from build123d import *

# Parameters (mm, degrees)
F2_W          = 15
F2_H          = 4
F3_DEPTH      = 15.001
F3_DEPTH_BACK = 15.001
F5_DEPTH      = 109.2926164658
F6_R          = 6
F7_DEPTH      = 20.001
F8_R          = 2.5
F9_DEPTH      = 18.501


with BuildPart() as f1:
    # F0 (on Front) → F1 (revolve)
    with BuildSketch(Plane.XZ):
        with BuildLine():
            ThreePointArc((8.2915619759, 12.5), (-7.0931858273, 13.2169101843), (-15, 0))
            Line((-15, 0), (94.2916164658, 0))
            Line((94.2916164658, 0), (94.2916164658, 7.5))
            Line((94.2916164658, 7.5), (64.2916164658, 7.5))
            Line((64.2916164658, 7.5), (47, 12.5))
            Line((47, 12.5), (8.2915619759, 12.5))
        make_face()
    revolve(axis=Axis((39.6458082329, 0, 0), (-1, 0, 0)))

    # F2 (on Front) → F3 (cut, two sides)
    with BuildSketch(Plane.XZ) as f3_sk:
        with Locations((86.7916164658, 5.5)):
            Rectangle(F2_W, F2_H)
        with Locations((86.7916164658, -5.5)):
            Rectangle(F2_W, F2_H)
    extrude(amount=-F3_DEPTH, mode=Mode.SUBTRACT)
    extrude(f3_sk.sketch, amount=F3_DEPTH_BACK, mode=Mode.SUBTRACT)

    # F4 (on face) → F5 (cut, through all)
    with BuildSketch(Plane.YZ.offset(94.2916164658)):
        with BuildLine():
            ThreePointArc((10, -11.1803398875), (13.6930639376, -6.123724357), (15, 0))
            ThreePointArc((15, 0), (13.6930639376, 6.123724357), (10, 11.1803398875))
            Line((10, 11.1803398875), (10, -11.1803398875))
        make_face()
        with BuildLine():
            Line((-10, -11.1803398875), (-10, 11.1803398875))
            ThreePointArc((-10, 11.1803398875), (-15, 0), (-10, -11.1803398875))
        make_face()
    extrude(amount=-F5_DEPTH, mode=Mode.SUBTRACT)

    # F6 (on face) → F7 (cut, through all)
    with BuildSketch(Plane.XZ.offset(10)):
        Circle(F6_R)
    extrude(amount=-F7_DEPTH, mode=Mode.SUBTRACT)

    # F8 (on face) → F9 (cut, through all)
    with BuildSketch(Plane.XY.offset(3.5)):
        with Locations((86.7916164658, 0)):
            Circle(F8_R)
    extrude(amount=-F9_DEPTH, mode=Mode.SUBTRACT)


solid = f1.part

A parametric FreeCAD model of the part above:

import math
import FreeCAD as App
import Part
import Sketcher
Q = App.Units.Quantity

doc = App.newDocument("Part")
body = doc.addObject("PartDesign::Body", "Body")

sketch1 = body.newObject("Sketcher::SketchObject", "Sketch")
sketch1.AttachmentSupport = (doc.getObject("XZ_Plane"), [""])
sketch1.MapMode = "FlatFace"
sketch1.addGeometry([
    Part.ArcOfCircle(Part.Circle(App.Vector(0, 0, 0), App.Vector(0, 0, 1), 15), math.radians(56), math.radians(180)),
    Part.LineSegment(App.Vector(-15, 0, 0), App.Vector(94, 0, 0)),
    Part.LineSegment(App.Vector(94, 0, 0), App.Vector(94, 8, 0)),
    Part.LineSegment(App.Vector(94, 8, 0), App.Vector(64, 8, 0)),
    Part.LineSegment(App.Vector(64, 8, 0), App.Vector(47, 12, 0)),
    Part.LineSegment(App.Vector(47, 12, 0), App.Vector(8, 12, 0)),
], False)
sketch1.addConstraint([
    Sketcher.Constraint("Coincident", 0, 2, 1, 1),
    Sketcher.Constraint("Coincident", 1, 2, 2, 1),
    Sketcher.Constraint("Coincident", 2, 2, 3, 1),
    Sketcher.Constraint("Coincident", 3, 2, 4, 1),
    Sketcher.Constraint("Coincident", 4, 2, 5, 1),
    Sketcher.Constraint("Coincident", 5, 2, 0, 1),
    Sketcher.Constraint("Horizontal", 1),
    Sketcher.Constraint("Vertical", 2),
    Sketcher.Constraint("Horizontal", 3),
    Sketcher.Constraint("Horizontal", 5),
    Sketcher.Constraint("Coincident", 0, 3, -1, 1),
    Sketcher.Constraint("PointOnObject", 0, 2, -1),
    Sketcher.Constraint("Radius", 0, Q("15 mm")),
    Sketcher.Constraint("DistanceX", 3, 2, 3, 1, Q("30 mm")),
    Sketcher.Constraint("Distance", 4, Q("18 mm")),
    Sketcher.Constraint("DistanceY", 2, 1, 2, 2, Q("7.5 mm")),
    Sketcher.Constraint("DistanceX", -1, 1, 4, 2, Q("47 mm")),
    Sketcher.Constraint("DistanceY", 3, 2, 4, 2, Q("5 mm")),
])
revolution = body.newObject("PartDesign::Revolution", "Revolution")
revolution.Profile = sketch1
revolution.ReferenceAxis = (sketch1, ["H_Axis"])
revolution.Angle = 360

sketch2 = body.newObject("Sketcher::SketchObject", "Sketch001")
sketch2.AttachmentSupport = (doc.getObject("XZ_Plane"), [""])
sketch2.MapMode = "FlatFace"
sketch2.addGeometry([
    Part.LineSegment(App.Vector(79.3, 7.5, 0), App.Vector(79.3, 3.5, 0)),
    Part.LineSegment(App.Vector(79.3, 3.5, 0), App.Vector(94.3, 3.5, 0)),
    Part.LineSegment(App.Vector(94.3, 3.5, 0), App.Vector(94.3, 7.5, 0)),
    Part.LineSegment(App.Vector(94.3, 7.5, 0), App.Vector(79.3, 7.5, 0)),
    Part.LineSegment(App.Vector(79.3, -3.5, 0), App.Vector(79.3, -7.5, 0)),
    Part.LineSegment(App.Vector(79.3, -7.5, 0), App.Vector(94.3, -7.5, 0)),
    Part.LineSegment(App.Vector(94.3, -7.5, 0), App.Vector(94.3, -3.5, 0)),
    Part.LineSegment(App.Vector(94.3, -3.5, 0), App.Vector(79.3, -3.5, 0)),
], False)
sketch2.addConstraint([
    Sketcher.Constraint("Coincident", 0, 2, 1, 1),
    Sketcher.Constraint("Coincident", 1, 2, 2, 1),
    Sketcher.Constraint("Coincident", 2, 2, 3, 1),
    Sketcher.Constraint("Coincident", 3, 2, 0, 1),
    Sketcher.Constraint("Coincident", 4, 2, 5, 1),
    Sketcher.Constraint("Coincident", 5, 2, 6, 1),
    Sketcher.Constraint("Coincident", 6, 2, 7, 1),
    Sketcher.Constraint("Coincident", 7, 2, 4, 1),
    Sketcher.Constraint("Vertical", 0),
    Sketcher.Constraint("Horizontal", 1),
    Sketcher.Constraint("Vertical", 2),
    Sketcher.Constraint("Horizontal", 3),
    Sketcher.Constraint("Vertical", 4),
    Sketcher.Constraint("Horizontal", 5),
    Sketcher.Constraint("Vertical", 6),
    Sketcher.Constraint("Horizontal", 7),
    Sketcher.Constraint("Symmetric", 3, 2, 4, 2, -1),
    Sketcher.Constraint("Symmetric", 1, 2, 6, 2, -1),
    Sketcher.Constraint("DistanceX", 1, 1, 1, 2, Q("15 mm")),
    Sketcher.Constraint("DistanceY", 0, 2, 0, 1, Q("4 mm")),
    Sketcher.Constraint("DistanceY", 4, 2, 0, 2, Q("11 mm")),
    Sketcher.Constraint("DistanceX", -1, 1, 0, 2, Q("79.291616 mm")),
])
pocket1 = body.newObject("PartDesign::Pocket", "Pocket")
pocket1.Profile = sketch2
pocket1.Type = "ThroughAll"
pocket1.Midplane = True

sketch3 = body.newObject("Sketcher::SketchObject", "Sketch002")
sketch3.AttachmentSupport = (doc.getObject("YZ_Plane"), [""])
sketch3.MapMode = "FlatFace"
sketch3.AttachmentOffset = App.Placement(App.Vector(0, 0, 94.291616), App.Rotation())
sketch3.addGeometry([
    Part.ArcOfCircle(Part.Circle(App.Vector(0, 0, 0), App.Vector(0, 0, 1), 15), math.radians(-48), math.radians(0)),
    Part.ArcOfCircle(Part.Circle(App.Vector(0, 0, 0), App.Vector(0, 0, 1), 15), math.radians(0), math.radians(48)),
    Part.LineSegment(App.Vector(10, 11, 0), App.Vector(10, -11, 0)),
    Part.LineSegment(App.Vector(-10, -11, 0), App.Vector(-10, 11, 0)),
    Part.ArcOfCircle(Part.Circle(App.Vector(0, 0, 0), App.Vector(0, 0, 1), 15), math.radians(132), math.radians(228)),
], False)
sketch3.addConstraint([
    Sketcher.Constraint("Tangent", 0, 2, 1, 1),
    Sketcher.Constraint("Coincident", 1, 2, 2, 1),
    Sketcher.Constraint("Coincident", 2, 2, 0, 1),
    Sketcher.Constraint("Coincident", 3, 1, 4, 2),
    Sketcher.Constraint("Coincident", 4, 1, 3, 2),
    Sketcher.Constraint("Vertical", 2),
    Sketcher.Constraint("Vertical", 3),
    Sketcher.Constraint("Coincident", 0, 3, -1, 1),
    Sketcher.Constraint("Coincident", 4, 3, -1, 1),
    Sketcher.Constraint("Equal", 0, 1),
    Sketcher.Constraint("Equal", 1, 4),
    Sketcher.Constraint("PointOnObject", 0, 2, -1),
    Sketcher.Constraint("Horizontal", 2, 2, 3, 1),
    Sketcher.Constraint("Radius", 0, Q("15 mm")),
    Sketcher.Constraint("DistanceX", -1, 1, 1, 2, Q("10 mm")),
])
pocket2 = body.newObject("PartDesign::Pocket", "Pocket001")
pocket2.Profile = sketch3
pocket2.Type = "ThroughAll"

sketch4 = body.newObject("Sketcher::SketchObject", "Sketch003")
sketch4.AttachmentSupport = (doc.getObject("XZ_Plane"), [""])
sketch4.MapMode = "FlatFace"
sketch4.AttachmentOffset = App.Placement(App.Vector(0, 0, 10), App.Rotation())
sketch4.addGeometry(Part.Circle(App.Vector(0, 0, 0), App.Vector(0, 0, 1), 6), False)
sketch4.addConstraint([
    Sketcher.Constraint("Coincident", 0, 3, -1, 1),
    Sketcher.Constraint("Diameter", 0, Q("12 mm")),
])
pocket3 = body.newObject("PartDesign::Pocket", "Pocket002")
pocket3.Profile = sketch4
pocket3.Type = "ThroughAll"

sketch5 = body.newObject("Sketcher::SketchObject", "Sketch004")
sketch5.AttachmentSupport = (doc.getObject("XY_Plane"), [""])
sketch5.MapMode = "FlatFace"
sketch5.AttachmentOffset = App.Placement(App.Vector(0, 0, 3.5), App.Rotation())
sketch5.addGeometry(Part.Circle(App.Vector(86.8, 0, 0), App.Vector(0, 0, 1), 2.5), False)
sketch5.addConstraint([
    Sketcher.Constraint("PointOnObject", 0, 3, -1),
    Sketcher.Constraint("Diameter", 0, Q("5 mm")),
    Sketcher.Constraint("DistanceX", -1, 1, 0, 3, Q("86.791616 mm")),
])
pocket4 = body.newObject("PartDesign::Pocket", "Pocket003")
pocket4.Profile = sketch5
pocket4.Type = "ThroughAll"

doc.recompute()
